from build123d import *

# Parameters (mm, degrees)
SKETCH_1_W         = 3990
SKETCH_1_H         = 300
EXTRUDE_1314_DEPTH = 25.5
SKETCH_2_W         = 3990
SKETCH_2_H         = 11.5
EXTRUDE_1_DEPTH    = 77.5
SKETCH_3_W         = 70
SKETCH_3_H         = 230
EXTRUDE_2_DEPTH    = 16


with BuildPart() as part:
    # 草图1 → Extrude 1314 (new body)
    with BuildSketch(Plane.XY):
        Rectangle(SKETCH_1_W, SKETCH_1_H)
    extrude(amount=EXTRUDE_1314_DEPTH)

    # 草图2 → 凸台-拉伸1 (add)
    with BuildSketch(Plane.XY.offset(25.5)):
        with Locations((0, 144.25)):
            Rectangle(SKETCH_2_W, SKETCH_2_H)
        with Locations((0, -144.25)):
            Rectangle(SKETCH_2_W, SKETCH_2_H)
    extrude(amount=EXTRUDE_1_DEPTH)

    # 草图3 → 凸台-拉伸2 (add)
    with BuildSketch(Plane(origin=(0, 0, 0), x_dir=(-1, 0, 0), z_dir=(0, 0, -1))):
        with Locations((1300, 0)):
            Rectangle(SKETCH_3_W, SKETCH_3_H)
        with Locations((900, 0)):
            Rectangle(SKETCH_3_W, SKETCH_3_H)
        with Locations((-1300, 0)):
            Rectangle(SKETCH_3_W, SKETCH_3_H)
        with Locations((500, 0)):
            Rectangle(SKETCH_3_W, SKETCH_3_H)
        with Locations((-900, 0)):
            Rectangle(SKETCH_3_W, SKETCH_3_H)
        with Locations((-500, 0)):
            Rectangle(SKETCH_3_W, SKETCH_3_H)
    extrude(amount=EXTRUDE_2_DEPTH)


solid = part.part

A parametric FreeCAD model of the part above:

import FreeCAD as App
import Part
import Sketcher

V = App.Vector


def add_polygon(sketch, points):
    """Adds a closed chain of lines whose ends are joined by coincident constraints."""
    first, n = sketch.GeometryCount, len(points)
    for a, b in zip(points, points[1:] + points[:1]):
        sketch.addGeometry(Part.LineSegment(App.Vector(*a, 0), App.Vector(*b, 0)), False)
    for i in range(n):
        sketch.addConstraint(Sketcher.Constraint("Coincident", first + i, 2, first + (i + 1) % n, 1))

doc = App.newDocument("Part")
body = doc.addObject("PartDesign::Body", "Body")

sketch1 = body.newObject("Sketcher::SketchObject", "Sketch")
sketch1.AttachmentSupport = (doc.getObject("XY_Plane"), [""])
sketch1.MapMode = "FlatFace"
add_polygon(sketch1, [(-1995, 150), (-1995, -150), (1995, -150), (1995, 150)])
sketch1.addConstraint(Sketcher.Constraint("Vertical", 0))
sketch1.addConstraint(Sketcher.Constraint("Horizontal", 1))
sketch1.addConstraint(Sketcher.Constraint("Vertical", 2))
sketch1.addConstraint(Sketcher.Constraint("Horizontal", 3))
sketch1.addConstraint(Sketcher.Constraint("Symmetric", 0, 2, 2, 2, -1, 1))
sketch1.addConstraint(Sketcher.Constraint("DistanceX", 1, 1, 1, 2, 3990.0))
sketch1.addConstraint(Sketcher.Constraint("DistanceY", 0, 2, 0, 1, 300.0))
pad1 = body.newObject("PartDesign::Pad", "Pad")
pad1.Profile = sketch1
pad1.Length = 25.5

sketch2 = body.newObject("Sketcher::SketchObject", "Sketch001")
sketch2.AttachmentSupport = (doc.getObject("XY_Plane"), [""])
sketch2.MapMode = "FlatFace"
sketch2.AttachmentOffset = App.Placement(V(0, 0, 25.5), App.Rotation())
add_polygon(sketch2, [(-1995, 150), (-1995, 138), (1995, 138), (1995, 150)])
add_polygon(sketch2, [(-1995, -138), (-1995, -150), (1995, -150), (1995, -138)])
sketch2.addConstraint(Sketcher.Constraint("Vertical", 0))
sketch2.addConstraint(Sketcher.Constraint("Horizontal", 1))
sketch2.addConstraint(Sketcher.Constraint("Vertical", 2))
sketch2.addConstraint(Sketcher.Constraint("Horizontal", 3))
sketch2.addConstraint(Sketcher.Constraint("Vertical", 4))
sketch2.addConstraint(Sketcher.Constraint("Horizontal", 5))
sketch2.addConstraint(Sketcher.Constraint("Vertical", 6))
sketch2.addConstraint(Sketcher.Constraint("Horizontal", 7))
sketch2.addConstraint(Sketcher.Constraint("Symmetric", 2, 2, 4, 2, -1, 1))
sketch2.addConstraint(Sketcher.Constraint("Symmetric", 0, 2, 6, 2, -1, 1))
sketch2.addConstraint(Sketcher.Constraint("Vertical", 3, 2, 4, 2))
sketch2.addConstraint(Sketcher.Constraint("DistanceX", 1, 1, 1, 2, 3990.0))
sketch2.addConstraint(Sketcher.Constraint("DistanceY", 0, 2, 0, 1, 11.5))
sketch2.addConstraint(Sketcher.Constraint("DistanceY", -1, 1, 2, 2, 150.0))
pad2 = body.newObject("PartDesign::Pad", "Pad001")
pad2.Profile = sketch2
pad2.Length = 77.5

sketch3 = body.newObject("Sketcher::SketchObject", "Sketch002")
sketch3.AttachmentSupport = (doc.getObject("XY_Plane"), [""])
sketch3.MapMode = "FlatFace"
add_polygon(sketch3, [(-1265, 115), (-1265, -115), (-1335, -115), (-1335, 115)])
add_polygon(sketch3, [(-865, 115), (-865, -115), (-935, -115), (-935, 115)])
add_polygon(sketch3, [(1335, 115), (1335, -115), (1265, -115), (1265, 115)])
add_polygon(sketch3, [(-465, 115), (-465, -115), (-535, -115), (-535, 115)])
add_polygon(sketch3, [(935, 115), (935, -115), (865, -115), (865, 115)])
add_polygon(sketch3, [(535, 115), (535, -115), (465, -115), (465, 115)])
sketch3.addConstraint(Sketcher.Constraint("Vertical", 0))
sketch3.addConstraint(Sketcher.Constraint("Horizontal", 1))
sketch3.addConstraint(Sketcher.Constraint("Vertical", 2))
sketch3.addConstraint(Sketcher.Constraint("Horizontal", 3))
sketch3.addConstraint(Sketcher.Constraint("Vertical", 4))
sketch3.addConstraint(Sketcher.Constraint("Horizontal", 5))
sketch3.addConstraint(Sketcher.Constraint("Vertical", 6))
sketch3.addConstraint(Sketcher.Constraint("Horizontal", 7))
sketch3.addConstraint(Sketcher.Constraint("Vertical", 8))
sketch3.addConstraint(Sketcher.Constraint("Horizontal", 9))
sketch3.addConstraint(Sketcher.Constraint("Vertical", 10))
sketch3.addConstraint(Sketcher.Constraint("Horizontal", 11))
sketch3.addConstraint(Sketcher.Constraint("Vertical", 12))
sketch3.addConstraint(Sketcher.Constraint("Horizontal", 13))
sketch3.addConstraint(Sketcher.Constraint("Vertical", 14))
sketch3.addConstraint(Sketcher.Constraint("Horizontal", 15))
sketch3.addConstraint(Sketcher.Constraint("Vertical", 16))
sketch3.addConstraint(Sketcher.Constraint("Horizontal", 17))
sketch3.addConstraint(Sketcher.Constraint("Vertical", 18))
sketch3.addConstraint(Sketcher.Constraint("Horizontal", 19))
sketch3.addConstraint(Sketcher.Constraint("Vertical", 20))
sketch3.addConstraint(Sketcher.Constraint("Horizontal", 21))
sketch3.addConstraint(Sketcher.Constraint("Vertical", 22))
sketch3.addConstraint(Sketcher.Constraint("Horizontal", 23))
sketch3.addConstraint(Sketcher.Constraint("Symmetric", 2, 2, 8, 2, -1, 1))
sketch3.addConstraint(Sketcher.Constraint("Symmetric", 0, 2, 10, 2, -1, 1))
sketch3.addConstraint(Sketcher.Constraint("Symmetric", 6, 2, 16, 2, -1, 1))
sketch3.addConstraint(Sketcher.Constraint("Symmetric", 4, 2, 18, 2, -1, 1))
sketch3.addConstraint(Sketcher.Constraint("Symmetric", 14, 2, 20, 2, -1, 1))
sketch3.addConstraint(Sketcher.Constraint("Symmetric", 12, 2, 22, 2, -1, 1))
sketch3.addConstraint(Sketcher.Constraint("Horizontal", 1, 2, 4, 2))
sketch3.addConstraint(Sketcher.Constraint("Horizontal", 3, 2, 6, 2))
sketch3.addConstraint(Sketcher.Constraint("Horizontal", 5, 2, 8, 2))
sketch3.addConstraint(Sketcher.Constraint("Horizontal", 9, 2, 12, 2))
sketch3.addConstraint(Sketcher.Constraint("Horizontal", 11, 2, 14, 2))
sketch3.addConstraint(Sketcher.Constraint("Equal", 3, 5))
sketch3.addConstraint(Sketcher.Constraint("Equal", 11, 13))
sketch3.addConstraint(Sketcher.Constraint("DistanceX", 1, 2, 1, 1, 70.0))
sketch3.addConstraint(Sketcher.Constraint("DistanceY", 0, 2, 0, 1, 230.0))
sketch3.addConstraint(Sketcher.Constraint("DistanceX", 0, 2, -1, 1, 1265.0))
sketch3.addConstraint(Sketcher.Constraint("DistanceX", 4, 2, -1, 1, 865.0))
sketch3.addConstraint(Sketcher.Constraint("DistanceX", 12, 2, -1, 1, 465.0))
pad3 = body.newObject("PartDesign::Pad", "Pad002")
pad3.Profile = sketch3
pad3.Length = 16
pad3.Reversed = True

doc.recompute()
